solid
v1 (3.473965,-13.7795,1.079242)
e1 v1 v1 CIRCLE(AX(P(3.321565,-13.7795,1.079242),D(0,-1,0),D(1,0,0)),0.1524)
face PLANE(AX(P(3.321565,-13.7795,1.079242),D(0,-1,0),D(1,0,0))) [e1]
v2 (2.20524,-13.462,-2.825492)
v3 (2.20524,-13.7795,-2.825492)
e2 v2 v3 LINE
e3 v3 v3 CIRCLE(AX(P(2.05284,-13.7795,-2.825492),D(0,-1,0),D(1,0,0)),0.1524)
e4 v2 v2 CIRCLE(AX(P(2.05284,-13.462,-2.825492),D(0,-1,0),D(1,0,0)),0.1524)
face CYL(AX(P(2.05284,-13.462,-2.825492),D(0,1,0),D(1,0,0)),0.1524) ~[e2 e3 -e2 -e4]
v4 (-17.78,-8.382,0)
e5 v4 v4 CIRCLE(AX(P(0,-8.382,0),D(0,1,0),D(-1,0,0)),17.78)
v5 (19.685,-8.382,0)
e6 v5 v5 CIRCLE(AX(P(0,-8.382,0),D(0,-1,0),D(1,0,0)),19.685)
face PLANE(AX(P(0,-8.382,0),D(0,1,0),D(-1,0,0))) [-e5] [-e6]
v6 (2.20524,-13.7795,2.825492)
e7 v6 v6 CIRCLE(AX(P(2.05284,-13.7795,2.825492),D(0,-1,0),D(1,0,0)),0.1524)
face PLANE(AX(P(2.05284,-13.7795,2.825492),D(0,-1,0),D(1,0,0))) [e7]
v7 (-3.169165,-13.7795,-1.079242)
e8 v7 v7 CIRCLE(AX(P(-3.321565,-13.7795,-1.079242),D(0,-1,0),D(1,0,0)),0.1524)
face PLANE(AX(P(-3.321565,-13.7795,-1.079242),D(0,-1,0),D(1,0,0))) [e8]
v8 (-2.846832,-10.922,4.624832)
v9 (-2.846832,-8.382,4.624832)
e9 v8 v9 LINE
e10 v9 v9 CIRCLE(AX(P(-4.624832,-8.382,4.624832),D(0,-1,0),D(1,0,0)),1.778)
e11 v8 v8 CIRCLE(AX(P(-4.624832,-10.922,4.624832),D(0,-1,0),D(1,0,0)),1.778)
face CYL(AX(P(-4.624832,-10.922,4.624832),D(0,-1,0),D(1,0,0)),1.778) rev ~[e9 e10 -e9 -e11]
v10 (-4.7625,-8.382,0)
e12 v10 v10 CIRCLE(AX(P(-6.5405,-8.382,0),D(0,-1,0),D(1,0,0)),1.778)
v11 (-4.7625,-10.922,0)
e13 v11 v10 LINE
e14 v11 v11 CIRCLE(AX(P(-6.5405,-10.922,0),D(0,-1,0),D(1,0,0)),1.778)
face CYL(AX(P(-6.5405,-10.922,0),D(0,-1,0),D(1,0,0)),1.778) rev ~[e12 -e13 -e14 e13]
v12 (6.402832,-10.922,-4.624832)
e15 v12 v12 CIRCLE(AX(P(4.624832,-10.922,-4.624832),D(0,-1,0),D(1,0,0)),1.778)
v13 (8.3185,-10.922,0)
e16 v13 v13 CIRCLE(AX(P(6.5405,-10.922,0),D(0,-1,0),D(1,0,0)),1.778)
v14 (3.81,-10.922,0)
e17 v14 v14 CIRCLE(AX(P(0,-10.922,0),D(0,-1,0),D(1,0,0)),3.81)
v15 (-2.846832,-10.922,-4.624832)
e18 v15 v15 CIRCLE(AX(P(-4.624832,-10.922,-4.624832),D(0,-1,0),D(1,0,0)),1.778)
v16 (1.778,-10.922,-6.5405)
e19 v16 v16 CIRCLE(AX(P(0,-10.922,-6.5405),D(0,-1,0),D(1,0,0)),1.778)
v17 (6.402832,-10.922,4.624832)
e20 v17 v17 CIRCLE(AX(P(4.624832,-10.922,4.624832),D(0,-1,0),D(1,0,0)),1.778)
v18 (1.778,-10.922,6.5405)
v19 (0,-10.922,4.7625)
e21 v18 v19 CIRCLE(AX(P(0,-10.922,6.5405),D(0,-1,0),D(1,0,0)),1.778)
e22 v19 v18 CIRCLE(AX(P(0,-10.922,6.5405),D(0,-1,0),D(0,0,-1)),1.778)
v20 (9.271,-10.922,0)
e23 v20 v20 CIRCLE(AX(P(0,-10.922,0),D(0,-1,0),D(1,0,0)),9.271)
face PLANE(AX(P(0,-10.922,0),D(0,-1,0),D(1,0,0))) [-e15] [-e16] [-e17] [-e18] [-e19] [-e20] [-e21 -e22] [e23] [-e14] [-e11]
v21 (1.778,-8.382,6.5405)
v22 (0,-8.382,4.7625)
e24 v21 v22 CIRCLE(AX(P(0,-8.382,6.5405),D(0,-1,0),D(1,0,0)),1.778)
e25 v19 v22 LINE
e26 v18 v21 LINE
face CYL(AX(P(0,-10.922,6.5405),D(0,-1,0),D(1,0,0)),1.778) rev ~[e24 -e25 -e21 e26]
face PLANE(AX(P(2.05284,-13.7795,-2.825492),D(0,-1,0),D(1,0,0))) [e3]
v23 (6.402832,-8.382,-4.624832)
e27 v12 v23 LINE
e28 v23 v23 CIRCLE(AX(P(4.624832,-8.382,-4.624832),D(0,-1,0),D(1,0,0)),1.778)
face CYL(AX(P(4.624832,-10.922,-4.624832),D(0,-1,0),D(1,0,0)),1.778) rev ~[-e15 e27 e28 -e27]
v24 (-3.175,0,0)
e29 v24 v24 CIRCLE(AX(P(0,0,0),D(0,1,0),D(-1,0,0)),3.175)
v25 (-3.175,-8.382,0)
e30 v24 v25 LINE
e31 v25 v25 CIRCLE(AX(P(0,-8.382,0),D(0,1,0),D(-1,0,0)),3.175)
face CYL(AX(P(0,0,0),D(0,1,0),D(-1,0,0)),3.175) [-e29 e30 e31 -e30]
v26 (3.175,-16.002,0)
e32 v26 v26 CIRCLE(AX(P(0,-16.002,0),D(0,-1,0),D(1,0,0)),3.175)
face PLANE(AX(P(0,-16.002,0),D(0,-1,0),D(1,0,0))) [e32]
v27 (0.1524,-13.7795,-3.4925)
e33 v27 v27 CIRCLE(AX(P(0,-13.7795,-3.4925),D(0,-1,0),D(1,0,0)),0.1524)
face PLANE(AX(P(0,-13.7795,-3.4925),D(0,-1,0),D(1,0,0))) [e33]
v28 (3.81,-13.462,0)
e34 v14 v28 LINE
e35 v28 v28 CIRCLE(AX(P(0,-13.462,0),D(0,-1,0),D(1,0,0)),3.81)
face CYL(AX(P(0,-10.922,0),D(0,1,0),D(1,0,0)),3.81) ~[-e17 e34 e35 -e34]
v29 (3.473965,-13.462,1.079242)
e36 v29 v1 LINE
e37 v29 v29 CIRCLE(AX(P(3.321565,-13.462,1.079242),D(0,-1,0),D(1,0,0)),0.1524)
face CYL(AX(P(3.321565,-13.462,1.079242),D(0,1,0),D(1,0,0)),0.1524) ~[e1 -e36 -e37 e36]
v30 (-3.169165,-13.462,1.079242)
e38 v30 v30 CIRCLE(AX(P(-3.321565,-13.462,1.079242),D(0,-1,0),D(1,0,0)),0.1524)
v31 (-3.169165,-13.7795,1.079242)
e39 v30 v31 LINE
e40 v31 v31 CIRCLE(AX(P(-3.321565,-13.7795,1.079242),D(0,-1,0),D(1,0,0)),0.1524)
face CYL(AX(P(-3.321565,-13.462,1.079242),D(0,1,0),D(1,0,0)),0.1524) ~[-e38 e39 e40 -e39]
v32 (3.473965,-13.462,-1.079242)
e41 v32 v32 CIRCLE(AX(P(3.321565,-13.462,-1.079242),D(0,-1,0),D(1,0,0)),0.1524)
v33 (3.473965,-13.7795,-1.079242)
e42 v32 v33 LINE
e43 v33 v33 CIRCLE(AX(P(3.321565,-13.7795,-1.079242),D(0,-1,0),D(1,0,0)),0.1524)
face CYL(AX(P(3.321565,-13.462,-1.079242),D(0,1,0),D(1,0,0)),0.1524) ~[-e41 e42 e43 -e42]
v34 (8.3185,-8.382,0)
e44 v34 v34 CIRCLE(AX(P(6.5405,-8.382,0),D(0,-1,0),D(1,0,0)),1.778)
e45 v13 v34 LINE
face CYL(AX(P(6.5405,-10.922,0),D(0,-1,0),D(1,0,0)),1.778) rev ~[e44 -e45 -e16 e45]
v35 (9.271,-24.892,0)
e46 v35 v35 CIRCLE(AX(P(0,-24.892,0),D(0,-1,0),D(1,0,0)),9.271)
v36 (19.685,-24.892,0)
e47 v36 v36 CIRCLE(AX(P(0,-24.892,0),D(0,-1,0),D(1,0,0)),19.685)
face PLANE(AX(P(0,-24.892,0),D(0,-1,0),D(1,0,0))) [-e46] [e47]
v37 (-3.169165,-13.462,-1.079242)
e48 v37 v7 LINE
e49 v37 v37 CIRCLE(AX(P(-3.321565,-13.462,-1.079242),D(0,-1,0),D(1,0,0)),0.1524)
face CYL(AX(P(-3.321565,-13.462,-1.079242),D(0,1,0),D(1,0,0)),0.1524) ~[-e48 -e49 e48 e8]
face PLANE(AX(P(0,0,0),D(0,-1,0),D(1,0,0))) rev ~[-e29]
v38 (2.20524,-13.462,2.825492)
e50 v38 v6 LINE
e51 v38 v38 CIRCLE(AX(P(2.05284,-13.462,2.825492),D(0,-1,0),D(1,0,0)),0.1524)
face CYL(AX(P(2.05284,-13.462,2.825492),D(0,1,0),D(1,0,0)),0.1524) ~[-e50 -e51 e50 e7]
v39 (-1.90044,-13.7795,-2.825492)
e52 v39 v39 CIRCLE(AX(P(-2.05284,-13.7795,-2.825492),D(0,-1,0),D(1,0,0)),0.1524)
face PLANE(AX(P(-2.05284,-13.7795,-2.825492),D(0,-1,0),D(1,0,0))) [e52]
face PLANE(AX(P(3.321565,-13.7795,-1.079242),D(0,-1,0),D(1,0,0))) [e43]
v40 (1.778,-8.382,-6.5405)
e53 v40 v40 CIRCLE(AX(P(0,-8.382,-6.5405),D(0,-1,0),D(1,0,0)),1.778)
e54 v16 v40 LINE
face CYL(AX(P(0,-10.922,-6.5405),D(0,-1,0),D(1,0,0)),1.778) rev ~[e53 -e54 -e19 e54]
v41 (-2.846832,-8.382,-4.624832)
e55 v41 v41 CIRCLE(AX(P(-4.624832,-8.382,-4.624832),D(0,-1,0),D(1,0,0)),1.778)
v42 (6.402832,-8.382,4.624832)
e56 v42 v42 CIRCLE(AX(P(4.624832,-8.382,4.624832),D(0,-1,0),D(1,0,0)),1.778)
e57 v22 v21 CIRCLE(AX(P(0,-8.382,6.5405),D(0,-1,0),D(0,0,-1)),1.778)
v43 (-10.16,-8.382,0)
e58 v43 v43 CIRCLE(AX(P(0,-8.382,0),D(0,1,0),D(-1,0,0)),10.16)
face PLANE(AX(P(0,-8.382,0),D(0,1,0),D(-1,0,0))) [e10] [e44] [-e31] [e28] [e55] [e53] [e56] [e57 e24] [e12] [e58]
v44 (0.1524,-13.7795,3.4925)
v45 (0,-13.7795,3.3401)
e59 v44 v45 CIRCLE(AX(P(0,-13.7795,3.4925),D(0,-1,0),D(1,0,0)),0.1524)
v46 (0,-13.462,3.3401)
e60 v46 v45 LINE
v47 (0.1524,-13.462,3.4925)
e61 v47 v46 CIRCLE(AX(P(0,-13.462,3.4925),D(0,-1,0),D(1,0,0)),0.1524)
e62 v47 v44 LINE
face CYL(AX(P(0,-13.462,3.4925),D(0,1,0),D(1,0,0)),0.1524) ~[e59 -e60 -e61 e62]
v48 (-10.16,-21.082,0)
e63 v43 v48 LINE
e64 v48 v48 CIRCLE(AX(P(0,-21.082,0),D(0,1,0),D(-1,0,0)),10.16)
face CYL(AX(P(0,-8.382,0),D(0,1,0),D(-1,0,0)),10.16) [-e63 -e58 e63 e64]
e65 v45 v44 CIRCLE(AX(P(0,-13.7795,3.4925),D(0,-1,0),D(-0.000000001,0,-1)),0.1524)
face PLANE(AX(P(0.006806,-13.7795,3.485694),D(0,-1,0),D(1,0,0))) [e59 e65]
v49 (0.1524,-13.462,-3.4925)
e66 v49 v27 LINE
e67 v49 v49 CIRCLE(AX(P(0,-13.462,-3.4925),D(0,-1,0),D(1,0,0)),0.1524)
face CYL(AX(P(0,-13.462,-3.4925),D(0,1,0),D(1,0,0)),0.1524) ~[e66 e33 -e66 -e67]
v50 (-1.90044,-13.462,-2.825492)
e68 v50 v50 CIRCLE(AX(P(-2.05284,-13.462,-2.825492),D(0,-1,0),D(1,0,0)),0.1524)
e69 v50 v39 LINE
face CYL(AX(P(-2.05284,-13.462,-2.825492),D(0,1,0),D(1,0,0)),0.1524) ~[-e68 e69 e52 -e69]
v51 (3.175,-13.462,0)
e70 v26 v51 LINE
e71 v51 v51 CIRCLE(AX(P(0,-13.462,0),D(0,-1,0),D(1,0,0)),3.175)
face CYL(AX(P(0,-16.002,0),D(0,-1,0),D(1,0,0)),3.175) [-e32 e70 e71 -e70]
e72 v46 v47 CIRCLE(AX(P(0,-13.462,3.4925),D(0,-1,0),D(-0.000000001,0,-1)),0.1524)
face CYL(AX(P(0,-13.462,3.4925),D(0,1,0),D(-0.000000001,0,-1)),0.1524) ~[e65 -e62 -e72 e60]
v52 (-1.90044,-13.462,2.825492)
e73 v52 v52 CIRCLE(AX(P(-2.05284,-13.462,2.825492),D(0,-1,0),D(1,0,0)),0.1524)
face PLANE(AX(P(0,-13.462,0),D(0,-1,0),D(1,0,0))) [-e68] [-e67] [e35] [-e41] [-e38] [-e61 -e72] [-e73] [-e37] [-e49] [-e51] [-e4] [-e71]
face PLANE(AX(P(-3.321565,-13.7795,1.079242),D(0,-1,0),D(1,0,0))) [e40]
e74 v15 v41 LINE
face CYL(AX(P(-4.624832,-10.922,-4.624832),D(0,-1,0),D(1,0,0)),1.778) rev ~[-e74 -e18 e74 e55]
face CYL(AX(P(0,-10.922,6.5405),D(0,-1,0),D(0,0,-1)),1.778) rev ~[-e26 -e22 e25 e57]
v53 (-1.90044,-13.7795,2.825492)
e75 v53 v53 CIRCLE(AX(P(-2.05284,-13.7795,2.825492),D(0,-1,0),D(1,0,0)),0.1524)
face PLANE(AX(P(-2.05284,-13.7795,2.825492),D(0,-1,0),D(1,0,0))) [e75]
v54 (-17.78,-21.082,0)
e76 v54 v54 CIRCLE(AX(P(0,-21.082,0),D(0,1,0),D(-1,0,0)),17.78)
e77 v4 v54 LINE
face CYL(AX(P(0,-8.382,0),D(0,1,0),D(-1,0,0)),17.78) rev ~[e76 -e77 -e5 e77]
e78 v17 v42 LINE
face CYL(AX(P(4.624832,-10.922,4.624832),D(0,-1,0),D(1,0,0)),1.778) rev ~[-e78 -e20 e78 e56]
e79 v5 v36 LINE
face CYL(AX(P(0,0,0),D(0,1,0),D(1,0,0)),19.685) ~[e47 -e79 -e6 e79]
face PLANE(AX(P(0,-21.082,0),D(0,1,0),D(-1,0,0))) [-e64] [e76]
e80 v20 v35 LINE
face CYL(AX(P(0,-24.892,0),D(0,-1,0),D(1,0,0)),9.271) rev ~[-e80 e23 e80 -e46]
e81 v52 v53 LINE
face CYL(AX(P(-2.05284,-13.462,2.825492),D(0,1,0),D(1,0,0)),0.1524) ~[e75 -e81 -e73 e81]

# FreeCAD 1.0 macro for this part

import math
import FreeCAD as App
import Part
import Sketcher
from FreeCAD import Vector
Q = App.Units.Quantity

doc = App.newDocument("Part")
body = doc.addObject("PartDesign::Body", "Body")

sketch1 = doc.addObject("Sketcher::SketchObject", "Sketch")
body.addObject(sketch1)
sketch1.AttachmentSupport = (doc.XZ_Plane, [""])
sketch1.MapMode = "FlatFace"
sketch1.addGeometry(Part.Circle(Vector(0, 0, 0), Vector(0, 0, 1), 20), False)
sketch1.addConstraint([
    Sketcher.Constraint("Coincident", 0, 3, -1, 1),
    Sketcher.Constraint("Diameter", 0, Q("1.55 in")),
])
pad1 = doc.addObject("PartDesign::Pad", "Pad")
body.addObject(pad1)
pad1.Profile = sketch1
pad1.Length = Q("0.98 in")

sketch2 = doc.addObject("Sketcher::SketchObject", "Sketch001")
body.addObject(sketch2)
sketch2.AttachmentSupport = (doc.XZ_Plane, [""])
sketch2.MapMode = "FlatFace"
sketch2.addGeometry([
    Part.Circle(Vector(0, 0, 0), Vector(0, 0, 1), 19.7),
    Part.Circle(Vector(0, 0, 0), Vector(0, 0, 1), 3.2),
], False)
sketch2.addConstraint([
    Sketcher.Constraint("Coincident", 0, 3, -1, 1),
    Sketcher.Constraint("Coincident", 1, 3, -1, 1),
    Sketcher.Constraint("Diameter", 0, Q("1.55 in")),
    Sketcher.Constraint("Diameter", 1, Q("0.25 in")),
])
pocket1 = doc.addObject("PartDesign::Pocket", "Pocket")
body.addObject(pocket1)
pocket1.Profile = sketch2
pocket1.Length = Q("0.33 in")
pocket1.Reversed = True

sketch3 = doc.addObject("Sketcher::SketchObject", "Sketch002")
body.addObject(sketch3)
sketch3.AttachmentSupport = (doc.XZ_Plane, [""])
sketch3.MapMode = "FlatFace"
sketch3.AttachmentOffset = App.Placement(Vector(0, 0, 0.98 * 25.4), App.Rotation())
sketch3.addGeometry(Part.Circle(Vector(0, 0, 0), Vector(0, 0, 1), 9), False)
sketch3.addConstraint([
    Sketcher.Constraint("Coincident", 0, 3, -1, 1),
    Sketcher.Constraint("Diameter", 0, Q("0.73 in")),
])
pocket2 = doc.addObject("PartDesign::Pocket", "Pocket001")
body.addObject(pocket2)
pocket2.Profile = sketch3
pocket2.Length = Q("0.35 in")

sketch4 = doc.addObject("Sketcher::SketchObject", "Sketch003")
body.addObject(sketch4)
sketch4.AttachmentSupport = (doc.XZ_Plane, [""])
sketch4.MapMode = "FlatFace"
sketch4.AttachmentOffset = App.Placement(Vector(0, 0, 0.63 * 25.4), App.Rotation())
sketch4.addGeometry([
    Part.Circle(Vector(0, 0, 0), Vector(0, 0, 1), 9.3),
    Part.Circle(Vector(0, 0, 0), Vector(0, 0, 1), 3.2),
], False)
sketch4.addConstraint([
    Sketcher.Constraint("Coincident", 0, 3, -1, 1),
    Sketcher.Constraint("Coincident", 1, 3, -1, 1),
    Sketcher.Constraint("Diameter", 0, Q("0.73 in")),
    Sketcher.Constraint("Diameter", 1, Q("0.25 in")),
])
pocket3 = doc.addObject("PartDesign::Pocket", "Pocket002")
body.addObject(pocket3)
pocket3.Profile = sketch4
pocket3.Length = Q("0.2 in")

sketch5 = doc.addObject("Sketcher::SketchObject", "Sketch004")
body.addObject(sketch5)
sketch5.AttachmentSupport = (doc.XZ_Plane, [""])
sketch5.MapMode = "FlatFace"
sketch5.AttachmentOffset = App.Placement(Vector(0, 0, 0.43 * 25.4), App.Rotation())
sketch5.addGeometry([
    Part.Circle(Vector(0, 0, 0), Vector(0, 0, 1), 3.8),
    Part.Circle(Vector(0, 0, 0), Vector(0, 0, 1), 3.2),
], False)
sketch5.addConstraint([
    Sketcher.Constraint("Coincident", 0, 3, -1, 1),
    Sketcher.Constraint("Coincident", 1, 3, -1, 1),
    Sketcher.Constraint("Diameter", 0, Q("0.3 in")),
    Sketcher.Constraint("Diameter", 1, Q("0.25 in")),
])
pad2 = doc.addObject("PartDesign::Pad", "Pad001")
body.addObject(pad2)
pad2.Profile = sketch5
pad2.Length = Q("0.1 in")

sketch6 = doc.addObject("Sketcher::SketchObject", "Sketch005")
body.addObject(sketch6)
sketch6.AttachmentSupport = (doc.XZ_Plane, [""])
sketch6.MapMode = "FlatFace"
sketch6.AttachmentOffset = App.Placement(Vector(0, 0, 0.43 * 25.4), App.Rotation())
sketch6.addGeometry([
    Part.Circle(Vector(-4.6, 4.6, 0), Vector(0, 0, 1), 1.8),
    Part.ArcOfCircle(Part.Circle(Vector(0, 6.5, 0), Vector(0, 0, 1), 1.8), math.radians(0), math.radians(270)),
    Part.ArcOfCircle(Part.Circle(Vector(0, 6.5, 0), Vector(0, 0, 1), 1.8), math.radians(-90), math.radians(0)),
    Part.Circle(Vector(4.6, 4.6, 0), Vector(0, 0, 1), 1.8),
    Part.Circle(Vector(6.5, 0, 0), Vector(0, 0, 1), 1.8),
    Part.Circle(Vector(4.6, -4.6, 0), Vector(0, 0, 1), 1.8),
    Part.Circle(Vector(0, -6.5, 0), Vector(0, 0, 1), 1.8),
    Part.Circle(Vector(-4.6, -4.6, 0), Vector(0, 0, 1), 1.8),
    Part.Circle(Vector(-6.5, 0, 0), Vector(0, 0, 1), 1.8),
], False)
sketch6.addConstraint([
    Sketcher.Constraint("Tangent", 1, 1, 2, 2),
    Sketcher.Constraint("Coincident", 2, 1, 1, 2),
    Sketcher.Constraint("Equal", 0, 1),
    Sketcher.Constraint("Equal", 2, 3),
    Sketcher.Constraint("Equal", 3, 4),
    Sketcher.Constraint("Equal", 4, 5),
    Sketcher.Constraint("Equal", 5, 6),
    Sketcher.Constraint("Equal", 6, 7),
    Sketcher.Constraint("Equal", 7, 8),
    Sketcher.Constraint("Symmetric", 0, 3, 5, 3, -1, 1),
    Sketcher.Constraint("Symmetric", 1, 3, 6, 3, -1, 1),
    Sketcher.Constraint("Symmetric", 3, 3, 7, 3, -1, 1),
    Sketcher.Constraint("Symmetric", 4, 3, 8, 3, -1, 1),
    Sketcher.Constraint("Symmetric", 0, 3, 3, 3, -2),
    Sketcher.Constraint("PointOnObject", 1, 3, -2),
    Sketcher.Constraint("PointOnObject", 4, 3, -1),
    Sketcher.Constraint("PointOnObject", 2, 1, -2),
    Sketcher.Constraint("Horizontal", 2, 3, 1, 1),
    Sketcher.Constraint("Diameter", 0, Q("0.14 in")),
    Sketcher.Constraint("DistanceY", -1, 1, 2, 1, Q("0.1875 in")),
    Sketcher.Constraint("DistanceX", 1, 1, 4, 3, Q("0.1875 in")),
    Sketcher.Constraint("DistanceX", 0, 3, -1, 1, Q("4.624832 mm")),
    Sketcher.Constraint("DistanceY", -1, 1, 0, 3, Q("4.624832 mm")),
])
pocket4 = doc.addObject("PartDesign::Pocket", "Pocket003")
body.addObject(pocket4)
pocket4.Profile = sketch6
pocket4.Length = Q("0.302 in")

sketch7 = doc.addObject("Sketcher::SketchObject", "Sketch006")
body.addObject(sketch7)
sketch7.AttachmentSupport = (doc.XZ_Plane, [""])
sketch7.MapMode = "FlatFace"
sketch7.AttachmentOffset = App.Placement(Vector(0, 0, 0.53 * 25.4), App.Rotation())
sketch7.addGeometry([
    Part.ArcOfCircle(Part.Circle(Vector(0, 3.49, 0), Vector(0, 0, 1), 0.15), math.radians(0), math.radians(270)),
    Part.ArcOfCircle(Part.Circle(Vector(0, 3.49, 0), Vector(0, 0, 1), 0.15), math.radians(-90), math.radians(0)),
    Part.Circle(Vector(2.05, 2.83, 0), Vector(0, 0, 1), 0.15),
    Part.Circle(Vector(3.32, 1.08, 0), Vector(0, 0, 1), 0.15),
    Part.Circle(Vector(3.32, -1.08, 0), Vector(0, 0, 1), 0.15),
    Part.Circle(Vector(2.05, -2.83, 0), Vector(0, 0, 1), 0.15),
    Part.Circle(Vector(0, -3.49, 0), Vector(0, 0, 1), 0.15),
    Part.Circle(Vector(-2.05, -2.83, 0), Vector(0, 0, 1), 0.15),
    Part.Circle(Vector(-3.32, -1.08, 0), Vector(0, 0, 1), 0.15),
    Part.Circle(Vector(-3.32, 1.08, 0), Vector(0, 0, 1), 0.15),
    Part.Circle(Vector(-2.05, 2.83, 0), Vector(0, 0, 1), 0.15),
], False)
sketch7.addConstraint([
    Sketcher.Constraint("Tangent", 0, 1, 1, 2),
    Sketcher.Constraint("Coincident", 1, 1, 0, 2),
    Sketcher.Constraint("Equal", 1, 2),
    Sketcher.Constraint("Equal", 2, 3),
    Sketcher.Constraint("Equal", 3, 4),
    Sketcher.Constraint("Equal", 4, 5),
    Sketcher.Constraint("Equal", 5, 6),
    Sketcher.Constraint("Equal", 6, 7),
    Sketcher.Constraint("Equal", 7, 8),
    Sketcher.Constraint("Equal", 8, 9),
    Sketcher.Constraint("Equal", 9, 10),
    Sketcher.Constraint("Symmetric", 0, 3, 6, 3, -1, 1),
    Sketcher.Constraint("Symmetric", 2, 3, 7, 3, -1, 1),
    Sketcher.Constraint("Symmetric", 3, 3, 8, 3, -1, 1),
    Sketcher.Constraint("Symmetric", 4, 3, 9, 3, -1, 1),
    Sketcher.Constraint("Symmetric", 5, 3, 10, 3, -1, 1),
    Sketcher.Constraint("Symmetric", 5, 3, 7, 3, -2),
    Sketcher.Constraint("Symmetric", 4, 3, 8, 3, -2),
    Sketcher.Constraint("PointOnObject", 0, 3, -2),
    Sketcher.Constraint("PointOnObject", 1, 1, -2),
    Sketcher.Constraint("Horizontal", 1, 3, 0, 1),
    Sketcher.Constraint("Diameter", 2, Q("0.012 in")),
    Sketcher.Constraint("DistanceY", 6, 3, 0, 3, Q("0.275 in")),
    Sketcher.Constraint("DistanceX", -1, 1, 2, 3, Q("2.05284 mm")),
    Sketcher.Constraint("DistanceY", -1, 1, 2, 3, Q("2.825492 mm")),
    Sketcher.Constraint("DistanceY", -1, 1, 3, 3, Q("1.079242 mm")),
    Sketcher.Constraint("DistanceX", -1, 1, 3, 3, Q("3.321565 mm")),
])
pad3 = doc.addObject("PartDesign::Pad", "Pad002")
body.addObject(pad3)
pad3.Profile = sketch7
pad3.Length = Q("0.0125 in")

sketch8 = doc.addObject("Sketcher::SketchObject", "Sketch007")
body.addObject(sketch8)
sketch8.AttachmentSupport = (doc.XZ_Plane, [""])
sketch8.MapMode = "FlatFace"
sketch8.AttachmentOffset = App.Placement(Vector(0, 0, 0.33 * 25.4), App.Rotation())
sketch8.addGeometry([
    Part.Circle(Vector(0, 0, 0), Vector(0, 0, 1), 18),
    Part.Circle(Vector(0, 0, 0), Vector(0, 0, 1), 10),
], False)
sketch8.addConstraint([
    Sketcher.Constraint("Coincident", 0, 3, -1, 1),
    Sketcher.Constraint("Coincident", 1, 3, -1, 1),
    Sketcher.Constraint("Diameter", 0, Q("1.4 in")),
    Sketcher.Constraint("Diameter", 1, Q("0.8 in")),
])
pocket5 = doc.addObject("PartDesign::Pocket", "Pocket004")
body.addObject(pocket5)
pocket5.Profile = sketch8
pocket5.Length = Q("0.5 in")
pocket5.Reversed = True

doc.recompute()
